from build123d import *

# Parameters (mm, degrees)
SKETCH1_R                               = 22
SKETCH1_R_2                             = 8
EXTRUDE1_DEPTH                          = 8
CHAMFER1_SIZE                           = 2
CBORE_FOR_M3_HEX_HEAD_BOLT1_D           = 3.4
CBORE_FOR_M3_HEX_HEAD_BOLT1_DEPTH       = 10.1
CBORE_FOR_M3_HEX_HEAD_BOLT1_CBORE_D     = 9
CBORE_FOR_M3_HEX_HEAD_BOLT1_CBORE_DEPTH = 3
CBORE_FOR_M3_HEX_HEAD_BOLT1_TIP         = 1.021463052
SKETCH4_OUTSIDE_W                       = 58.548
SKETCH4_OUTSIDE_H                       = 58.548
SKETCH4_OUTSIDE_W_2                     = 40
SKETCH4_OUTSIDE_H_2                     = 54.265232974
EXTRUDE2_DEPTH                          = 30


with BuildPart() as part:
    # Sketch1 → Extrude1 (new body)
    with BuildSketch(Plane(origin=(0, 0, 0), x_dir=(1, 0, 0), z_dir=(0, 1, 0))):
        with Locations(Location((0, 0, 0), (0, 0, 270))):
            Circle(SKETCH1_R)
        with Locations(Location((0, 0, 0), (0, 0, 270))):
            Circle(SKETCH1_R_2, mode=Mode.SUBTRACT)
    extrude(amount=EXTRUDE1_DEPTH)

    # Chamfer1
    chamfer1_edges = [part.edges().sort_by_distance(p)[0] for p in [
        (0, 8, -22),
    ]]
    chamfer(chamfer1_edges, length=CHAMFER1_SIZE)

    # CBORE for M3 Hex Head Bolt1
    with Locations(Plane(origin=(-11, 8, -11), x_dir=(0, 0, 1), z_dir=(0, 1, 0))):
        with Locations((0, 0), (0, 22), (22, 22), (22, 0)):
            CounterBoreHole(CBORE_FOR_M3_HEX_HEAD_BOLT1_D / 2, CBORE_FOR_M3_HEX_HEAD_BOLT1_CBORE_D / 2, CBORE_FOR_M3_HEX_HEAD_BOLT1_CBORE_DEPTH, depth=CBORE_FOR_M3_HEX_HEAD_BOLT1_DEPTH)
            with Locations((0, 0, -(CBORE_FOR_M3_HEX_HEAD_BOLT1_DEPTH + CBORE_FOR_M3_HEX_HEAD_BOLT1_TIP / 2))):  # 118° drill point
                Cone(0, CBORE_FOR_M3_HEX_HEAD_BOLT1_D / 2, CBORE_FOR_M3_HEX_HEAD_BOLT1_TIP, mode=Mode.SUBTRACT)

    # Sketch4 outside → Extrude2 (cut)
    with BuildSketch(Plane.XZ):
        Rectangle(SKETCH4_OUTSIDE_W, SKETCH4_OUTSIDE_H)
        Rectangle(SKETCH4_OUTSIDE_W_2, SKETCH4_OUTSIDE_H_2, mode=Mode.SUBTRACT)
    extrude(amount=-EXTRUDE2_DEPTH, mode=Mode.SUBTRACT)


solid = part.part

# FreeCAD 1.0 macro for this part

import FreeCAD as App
import Part
import Sketcher
from FreeCAD import Vector
Q = App.Units.Quantity


def edges_at(feature, points):
    """Names of the edges that pass closest to the given points."""
    edges = feature.Shape.Edges
    near = lambda p: min(range(len(edges)), key=lambda i: edges[i].distToShape(Part.Vertex(*p))[0])
    return sorted({f"Edge{near(p) + 1}" for p in points})

doc = App.newDocument("Part")
body = doc.addObject("PartDesign::Body", "Body")

sketch1 = body.newObject("Sketcher::SketchObject", "Sketch")
sketch1.AttachmentSupport = (doc.getObject("XZ_Plane"), [""])
sketch1.MapMode = "FlatFace"
sketch1.addGeometry([
    Part.Circle(Vector(0, 0, 0), Vector(0, 0, 1), 22),
    Part.Circle(Vector(0, 0, 0), Vector(0, 0, 1), 8),
], False)
sketch1.addConstraint([
    Sketcher.Constraint("Coincident", 0, 3, -1, 1),
    Sketcher.Constraint("Coincident", 1, 3, -1, 1),
    Sketcher.Constraint("Diameter", 0, Q("44 mm")),
    Sketcher.Constraint("Diameter", 1, Q("16 mm")),
])
pad1 = body.newObject("PartDesign::Pad", "Pad")
pad1.Profile = sketch1
pad1.Length = 8
pad1.Reversed = True
doc.recompute()

chamfer = body.newObject("PartDesign::Chamfer", "Chamfer")
chamfer.Base = (pad1, edges_at(pad1, [(0, 8, -22)]))
chamfer.Size = 2

sketch2 = body.newObject("Sketcher::SketchObject", "Sketch001")
sketch2.AttachmentSupport = (doc.getObject("XZ_Plane"), [""])
sketch2.MapMode = "FlatFace"
sketch2.AttachmentOffset = App.Placement(Vector(0, 0, -8), App.Rotation())
sketch2.addGeometry([
    Part.Circle(Vector(-11, -11, 0), Vector(0, 0, 1), 1.7),
    Part.Circle(Vector(11, -11, 0), Vector(0, 0, 1), 1.7),
    Part.Circle(Vector(11, 11, 0), Vector(0, 0, 1), 1.7),
    Part.Circle(Vector(-11, 11, 0), Vector(0, 0, 1), 1.7),
], False)
sketch2.addConstraint([
    Sketcher.Constraint("Equal", 0, 1),
    Sketcher.Constraint("Equal", 1, 2),
    Sketcher.Constraint("Equal", 2, 3),
    Sketcher.Constraint("Symmetric", 0, 3, 2, 3, -1, 1),
    Sketcher.Constraint("Symmetric", 1, 3, 3, 3, -1, 1),
    Sketcher.Constraint("Symmetric", 0, 3, 1, 3, -2),
    Sketcher.Constraint("Diameter", 0, Q("3.4 mm")),
    Sketcher.Constraint("DistanceX", 0, 3, -1, 1, Q("11 mm")),
    Sketcher.Constraint("DistanceY", 0, 3, -1, 1, Q("11 mm")),
])
doc.recompute()
hole = body.newObject("PartDesign::Hole", "Hole")
hole.Profile = sketch2
hole.ThreadType = "None"
hole.Diameter = 3.4
hole.DepthType = "Dimension"
hole.Depth = 10.1
hole.DrillPoint = "Angled"
hole.DrillPointAngle = 118
hole.HoleCutType = "Counterbore"
hole.HoleCutDiameter = 9
hole.HoleCutDepth = 3
hole.Reversed = True

sketch3 = body.newObject("Sketcher::SketchObject", "Sketch002")
sketch3.AttachmentSupport = (doc.getObject("XZ_Plane"), [""])
sketch3.MapMode = "FlatFace"
sketch3.addGeometry([
    Part.LineSegment(Vector(-29, 29, 0), Vector(-29, -29, 0)),
    Part.LineSegment(Vector(-29, -29, 0), Vector(29, -29, 0)),
    Part.LineSegment(Vector(29, -29, 0), Vector(29, 29, 0)),
    Part.LineSegment(Vector(29, 29, 0), Vector(-29, 29, 0)),
    Part.LineSegment(Vector(20, -27, 0), Vector(-20, -27, 0)),
    Part.LineSegment(Vector(-20, -27, 0), Vector(-20, 27, 0)),
    Part.LineSegment(Vector(-20, 27, 0), Vector(20, 27, 0)),
    Part.LineSegment(Vector(20, 27, 0), Vector(20, -27, 0)),
], False)
sketch3.addConstraint([
    Sketcher.Constraint("Coincident", 0, 2, 1, 1),
    Sketcher.Constraint("Coincident", 1, 2, 2, 1),
    Sketcher.Constraint("Coincident", 2, 2, 3, 1),
    Sketcher.Constraint("Coincident", 3, 2, 0, 1),
    Sketcher.Constraint("Coincident", 4, 2, 5, 1),
    Sketcher.Constraint("Coincident", 5, 2, 6, 1),
    Sketcher.Constraint("Coincident", 6, 2, 7, 1),
    Sketcher.Constraint("Coincident", 7, 2, 4, 1),
    Sketcher.Constraint("Vertical", 0),
    Sketcher.Constraint("Horizontal", 1),
    Sketcher.Constraint("Vertical", 2),
    Sketcher.Constraint("Horizontal", 3),
    Sketcher.Constraint("Horizontal", 4),
    Sketcher.Constraint("Vertical", 5),
    Sketcher.Constraint("Horizontal", 6),
    Sketcher.Constraint("Vertical", 7),
    Sketcher.Constraint("Symmetric", 0, 2, 2, 2, -1, 1),
    Sketcher.Constraint("Symmetric", 4, 2, 6, 2, -1, 1),
    Sketcher.Constraint("Equal", 3, 0),
    Sketcher.Constraint("DistanceX", 4, 2, 4, 1, Q("40 mm")),
    Sketcher.Constraint("DistanceX", 1, 1, 1, 2, Q("58.548 mm")),
    Sketcher.Constraint("DistanceY", 5, 1, 5, 2, Q("54.265233 mm")),
])
pocket1 = body.newObject("PartDesign::Pocket", "Pocket")
pocket1.Profile = sketch3
pocket1.Length = 30

doc.recompute()
